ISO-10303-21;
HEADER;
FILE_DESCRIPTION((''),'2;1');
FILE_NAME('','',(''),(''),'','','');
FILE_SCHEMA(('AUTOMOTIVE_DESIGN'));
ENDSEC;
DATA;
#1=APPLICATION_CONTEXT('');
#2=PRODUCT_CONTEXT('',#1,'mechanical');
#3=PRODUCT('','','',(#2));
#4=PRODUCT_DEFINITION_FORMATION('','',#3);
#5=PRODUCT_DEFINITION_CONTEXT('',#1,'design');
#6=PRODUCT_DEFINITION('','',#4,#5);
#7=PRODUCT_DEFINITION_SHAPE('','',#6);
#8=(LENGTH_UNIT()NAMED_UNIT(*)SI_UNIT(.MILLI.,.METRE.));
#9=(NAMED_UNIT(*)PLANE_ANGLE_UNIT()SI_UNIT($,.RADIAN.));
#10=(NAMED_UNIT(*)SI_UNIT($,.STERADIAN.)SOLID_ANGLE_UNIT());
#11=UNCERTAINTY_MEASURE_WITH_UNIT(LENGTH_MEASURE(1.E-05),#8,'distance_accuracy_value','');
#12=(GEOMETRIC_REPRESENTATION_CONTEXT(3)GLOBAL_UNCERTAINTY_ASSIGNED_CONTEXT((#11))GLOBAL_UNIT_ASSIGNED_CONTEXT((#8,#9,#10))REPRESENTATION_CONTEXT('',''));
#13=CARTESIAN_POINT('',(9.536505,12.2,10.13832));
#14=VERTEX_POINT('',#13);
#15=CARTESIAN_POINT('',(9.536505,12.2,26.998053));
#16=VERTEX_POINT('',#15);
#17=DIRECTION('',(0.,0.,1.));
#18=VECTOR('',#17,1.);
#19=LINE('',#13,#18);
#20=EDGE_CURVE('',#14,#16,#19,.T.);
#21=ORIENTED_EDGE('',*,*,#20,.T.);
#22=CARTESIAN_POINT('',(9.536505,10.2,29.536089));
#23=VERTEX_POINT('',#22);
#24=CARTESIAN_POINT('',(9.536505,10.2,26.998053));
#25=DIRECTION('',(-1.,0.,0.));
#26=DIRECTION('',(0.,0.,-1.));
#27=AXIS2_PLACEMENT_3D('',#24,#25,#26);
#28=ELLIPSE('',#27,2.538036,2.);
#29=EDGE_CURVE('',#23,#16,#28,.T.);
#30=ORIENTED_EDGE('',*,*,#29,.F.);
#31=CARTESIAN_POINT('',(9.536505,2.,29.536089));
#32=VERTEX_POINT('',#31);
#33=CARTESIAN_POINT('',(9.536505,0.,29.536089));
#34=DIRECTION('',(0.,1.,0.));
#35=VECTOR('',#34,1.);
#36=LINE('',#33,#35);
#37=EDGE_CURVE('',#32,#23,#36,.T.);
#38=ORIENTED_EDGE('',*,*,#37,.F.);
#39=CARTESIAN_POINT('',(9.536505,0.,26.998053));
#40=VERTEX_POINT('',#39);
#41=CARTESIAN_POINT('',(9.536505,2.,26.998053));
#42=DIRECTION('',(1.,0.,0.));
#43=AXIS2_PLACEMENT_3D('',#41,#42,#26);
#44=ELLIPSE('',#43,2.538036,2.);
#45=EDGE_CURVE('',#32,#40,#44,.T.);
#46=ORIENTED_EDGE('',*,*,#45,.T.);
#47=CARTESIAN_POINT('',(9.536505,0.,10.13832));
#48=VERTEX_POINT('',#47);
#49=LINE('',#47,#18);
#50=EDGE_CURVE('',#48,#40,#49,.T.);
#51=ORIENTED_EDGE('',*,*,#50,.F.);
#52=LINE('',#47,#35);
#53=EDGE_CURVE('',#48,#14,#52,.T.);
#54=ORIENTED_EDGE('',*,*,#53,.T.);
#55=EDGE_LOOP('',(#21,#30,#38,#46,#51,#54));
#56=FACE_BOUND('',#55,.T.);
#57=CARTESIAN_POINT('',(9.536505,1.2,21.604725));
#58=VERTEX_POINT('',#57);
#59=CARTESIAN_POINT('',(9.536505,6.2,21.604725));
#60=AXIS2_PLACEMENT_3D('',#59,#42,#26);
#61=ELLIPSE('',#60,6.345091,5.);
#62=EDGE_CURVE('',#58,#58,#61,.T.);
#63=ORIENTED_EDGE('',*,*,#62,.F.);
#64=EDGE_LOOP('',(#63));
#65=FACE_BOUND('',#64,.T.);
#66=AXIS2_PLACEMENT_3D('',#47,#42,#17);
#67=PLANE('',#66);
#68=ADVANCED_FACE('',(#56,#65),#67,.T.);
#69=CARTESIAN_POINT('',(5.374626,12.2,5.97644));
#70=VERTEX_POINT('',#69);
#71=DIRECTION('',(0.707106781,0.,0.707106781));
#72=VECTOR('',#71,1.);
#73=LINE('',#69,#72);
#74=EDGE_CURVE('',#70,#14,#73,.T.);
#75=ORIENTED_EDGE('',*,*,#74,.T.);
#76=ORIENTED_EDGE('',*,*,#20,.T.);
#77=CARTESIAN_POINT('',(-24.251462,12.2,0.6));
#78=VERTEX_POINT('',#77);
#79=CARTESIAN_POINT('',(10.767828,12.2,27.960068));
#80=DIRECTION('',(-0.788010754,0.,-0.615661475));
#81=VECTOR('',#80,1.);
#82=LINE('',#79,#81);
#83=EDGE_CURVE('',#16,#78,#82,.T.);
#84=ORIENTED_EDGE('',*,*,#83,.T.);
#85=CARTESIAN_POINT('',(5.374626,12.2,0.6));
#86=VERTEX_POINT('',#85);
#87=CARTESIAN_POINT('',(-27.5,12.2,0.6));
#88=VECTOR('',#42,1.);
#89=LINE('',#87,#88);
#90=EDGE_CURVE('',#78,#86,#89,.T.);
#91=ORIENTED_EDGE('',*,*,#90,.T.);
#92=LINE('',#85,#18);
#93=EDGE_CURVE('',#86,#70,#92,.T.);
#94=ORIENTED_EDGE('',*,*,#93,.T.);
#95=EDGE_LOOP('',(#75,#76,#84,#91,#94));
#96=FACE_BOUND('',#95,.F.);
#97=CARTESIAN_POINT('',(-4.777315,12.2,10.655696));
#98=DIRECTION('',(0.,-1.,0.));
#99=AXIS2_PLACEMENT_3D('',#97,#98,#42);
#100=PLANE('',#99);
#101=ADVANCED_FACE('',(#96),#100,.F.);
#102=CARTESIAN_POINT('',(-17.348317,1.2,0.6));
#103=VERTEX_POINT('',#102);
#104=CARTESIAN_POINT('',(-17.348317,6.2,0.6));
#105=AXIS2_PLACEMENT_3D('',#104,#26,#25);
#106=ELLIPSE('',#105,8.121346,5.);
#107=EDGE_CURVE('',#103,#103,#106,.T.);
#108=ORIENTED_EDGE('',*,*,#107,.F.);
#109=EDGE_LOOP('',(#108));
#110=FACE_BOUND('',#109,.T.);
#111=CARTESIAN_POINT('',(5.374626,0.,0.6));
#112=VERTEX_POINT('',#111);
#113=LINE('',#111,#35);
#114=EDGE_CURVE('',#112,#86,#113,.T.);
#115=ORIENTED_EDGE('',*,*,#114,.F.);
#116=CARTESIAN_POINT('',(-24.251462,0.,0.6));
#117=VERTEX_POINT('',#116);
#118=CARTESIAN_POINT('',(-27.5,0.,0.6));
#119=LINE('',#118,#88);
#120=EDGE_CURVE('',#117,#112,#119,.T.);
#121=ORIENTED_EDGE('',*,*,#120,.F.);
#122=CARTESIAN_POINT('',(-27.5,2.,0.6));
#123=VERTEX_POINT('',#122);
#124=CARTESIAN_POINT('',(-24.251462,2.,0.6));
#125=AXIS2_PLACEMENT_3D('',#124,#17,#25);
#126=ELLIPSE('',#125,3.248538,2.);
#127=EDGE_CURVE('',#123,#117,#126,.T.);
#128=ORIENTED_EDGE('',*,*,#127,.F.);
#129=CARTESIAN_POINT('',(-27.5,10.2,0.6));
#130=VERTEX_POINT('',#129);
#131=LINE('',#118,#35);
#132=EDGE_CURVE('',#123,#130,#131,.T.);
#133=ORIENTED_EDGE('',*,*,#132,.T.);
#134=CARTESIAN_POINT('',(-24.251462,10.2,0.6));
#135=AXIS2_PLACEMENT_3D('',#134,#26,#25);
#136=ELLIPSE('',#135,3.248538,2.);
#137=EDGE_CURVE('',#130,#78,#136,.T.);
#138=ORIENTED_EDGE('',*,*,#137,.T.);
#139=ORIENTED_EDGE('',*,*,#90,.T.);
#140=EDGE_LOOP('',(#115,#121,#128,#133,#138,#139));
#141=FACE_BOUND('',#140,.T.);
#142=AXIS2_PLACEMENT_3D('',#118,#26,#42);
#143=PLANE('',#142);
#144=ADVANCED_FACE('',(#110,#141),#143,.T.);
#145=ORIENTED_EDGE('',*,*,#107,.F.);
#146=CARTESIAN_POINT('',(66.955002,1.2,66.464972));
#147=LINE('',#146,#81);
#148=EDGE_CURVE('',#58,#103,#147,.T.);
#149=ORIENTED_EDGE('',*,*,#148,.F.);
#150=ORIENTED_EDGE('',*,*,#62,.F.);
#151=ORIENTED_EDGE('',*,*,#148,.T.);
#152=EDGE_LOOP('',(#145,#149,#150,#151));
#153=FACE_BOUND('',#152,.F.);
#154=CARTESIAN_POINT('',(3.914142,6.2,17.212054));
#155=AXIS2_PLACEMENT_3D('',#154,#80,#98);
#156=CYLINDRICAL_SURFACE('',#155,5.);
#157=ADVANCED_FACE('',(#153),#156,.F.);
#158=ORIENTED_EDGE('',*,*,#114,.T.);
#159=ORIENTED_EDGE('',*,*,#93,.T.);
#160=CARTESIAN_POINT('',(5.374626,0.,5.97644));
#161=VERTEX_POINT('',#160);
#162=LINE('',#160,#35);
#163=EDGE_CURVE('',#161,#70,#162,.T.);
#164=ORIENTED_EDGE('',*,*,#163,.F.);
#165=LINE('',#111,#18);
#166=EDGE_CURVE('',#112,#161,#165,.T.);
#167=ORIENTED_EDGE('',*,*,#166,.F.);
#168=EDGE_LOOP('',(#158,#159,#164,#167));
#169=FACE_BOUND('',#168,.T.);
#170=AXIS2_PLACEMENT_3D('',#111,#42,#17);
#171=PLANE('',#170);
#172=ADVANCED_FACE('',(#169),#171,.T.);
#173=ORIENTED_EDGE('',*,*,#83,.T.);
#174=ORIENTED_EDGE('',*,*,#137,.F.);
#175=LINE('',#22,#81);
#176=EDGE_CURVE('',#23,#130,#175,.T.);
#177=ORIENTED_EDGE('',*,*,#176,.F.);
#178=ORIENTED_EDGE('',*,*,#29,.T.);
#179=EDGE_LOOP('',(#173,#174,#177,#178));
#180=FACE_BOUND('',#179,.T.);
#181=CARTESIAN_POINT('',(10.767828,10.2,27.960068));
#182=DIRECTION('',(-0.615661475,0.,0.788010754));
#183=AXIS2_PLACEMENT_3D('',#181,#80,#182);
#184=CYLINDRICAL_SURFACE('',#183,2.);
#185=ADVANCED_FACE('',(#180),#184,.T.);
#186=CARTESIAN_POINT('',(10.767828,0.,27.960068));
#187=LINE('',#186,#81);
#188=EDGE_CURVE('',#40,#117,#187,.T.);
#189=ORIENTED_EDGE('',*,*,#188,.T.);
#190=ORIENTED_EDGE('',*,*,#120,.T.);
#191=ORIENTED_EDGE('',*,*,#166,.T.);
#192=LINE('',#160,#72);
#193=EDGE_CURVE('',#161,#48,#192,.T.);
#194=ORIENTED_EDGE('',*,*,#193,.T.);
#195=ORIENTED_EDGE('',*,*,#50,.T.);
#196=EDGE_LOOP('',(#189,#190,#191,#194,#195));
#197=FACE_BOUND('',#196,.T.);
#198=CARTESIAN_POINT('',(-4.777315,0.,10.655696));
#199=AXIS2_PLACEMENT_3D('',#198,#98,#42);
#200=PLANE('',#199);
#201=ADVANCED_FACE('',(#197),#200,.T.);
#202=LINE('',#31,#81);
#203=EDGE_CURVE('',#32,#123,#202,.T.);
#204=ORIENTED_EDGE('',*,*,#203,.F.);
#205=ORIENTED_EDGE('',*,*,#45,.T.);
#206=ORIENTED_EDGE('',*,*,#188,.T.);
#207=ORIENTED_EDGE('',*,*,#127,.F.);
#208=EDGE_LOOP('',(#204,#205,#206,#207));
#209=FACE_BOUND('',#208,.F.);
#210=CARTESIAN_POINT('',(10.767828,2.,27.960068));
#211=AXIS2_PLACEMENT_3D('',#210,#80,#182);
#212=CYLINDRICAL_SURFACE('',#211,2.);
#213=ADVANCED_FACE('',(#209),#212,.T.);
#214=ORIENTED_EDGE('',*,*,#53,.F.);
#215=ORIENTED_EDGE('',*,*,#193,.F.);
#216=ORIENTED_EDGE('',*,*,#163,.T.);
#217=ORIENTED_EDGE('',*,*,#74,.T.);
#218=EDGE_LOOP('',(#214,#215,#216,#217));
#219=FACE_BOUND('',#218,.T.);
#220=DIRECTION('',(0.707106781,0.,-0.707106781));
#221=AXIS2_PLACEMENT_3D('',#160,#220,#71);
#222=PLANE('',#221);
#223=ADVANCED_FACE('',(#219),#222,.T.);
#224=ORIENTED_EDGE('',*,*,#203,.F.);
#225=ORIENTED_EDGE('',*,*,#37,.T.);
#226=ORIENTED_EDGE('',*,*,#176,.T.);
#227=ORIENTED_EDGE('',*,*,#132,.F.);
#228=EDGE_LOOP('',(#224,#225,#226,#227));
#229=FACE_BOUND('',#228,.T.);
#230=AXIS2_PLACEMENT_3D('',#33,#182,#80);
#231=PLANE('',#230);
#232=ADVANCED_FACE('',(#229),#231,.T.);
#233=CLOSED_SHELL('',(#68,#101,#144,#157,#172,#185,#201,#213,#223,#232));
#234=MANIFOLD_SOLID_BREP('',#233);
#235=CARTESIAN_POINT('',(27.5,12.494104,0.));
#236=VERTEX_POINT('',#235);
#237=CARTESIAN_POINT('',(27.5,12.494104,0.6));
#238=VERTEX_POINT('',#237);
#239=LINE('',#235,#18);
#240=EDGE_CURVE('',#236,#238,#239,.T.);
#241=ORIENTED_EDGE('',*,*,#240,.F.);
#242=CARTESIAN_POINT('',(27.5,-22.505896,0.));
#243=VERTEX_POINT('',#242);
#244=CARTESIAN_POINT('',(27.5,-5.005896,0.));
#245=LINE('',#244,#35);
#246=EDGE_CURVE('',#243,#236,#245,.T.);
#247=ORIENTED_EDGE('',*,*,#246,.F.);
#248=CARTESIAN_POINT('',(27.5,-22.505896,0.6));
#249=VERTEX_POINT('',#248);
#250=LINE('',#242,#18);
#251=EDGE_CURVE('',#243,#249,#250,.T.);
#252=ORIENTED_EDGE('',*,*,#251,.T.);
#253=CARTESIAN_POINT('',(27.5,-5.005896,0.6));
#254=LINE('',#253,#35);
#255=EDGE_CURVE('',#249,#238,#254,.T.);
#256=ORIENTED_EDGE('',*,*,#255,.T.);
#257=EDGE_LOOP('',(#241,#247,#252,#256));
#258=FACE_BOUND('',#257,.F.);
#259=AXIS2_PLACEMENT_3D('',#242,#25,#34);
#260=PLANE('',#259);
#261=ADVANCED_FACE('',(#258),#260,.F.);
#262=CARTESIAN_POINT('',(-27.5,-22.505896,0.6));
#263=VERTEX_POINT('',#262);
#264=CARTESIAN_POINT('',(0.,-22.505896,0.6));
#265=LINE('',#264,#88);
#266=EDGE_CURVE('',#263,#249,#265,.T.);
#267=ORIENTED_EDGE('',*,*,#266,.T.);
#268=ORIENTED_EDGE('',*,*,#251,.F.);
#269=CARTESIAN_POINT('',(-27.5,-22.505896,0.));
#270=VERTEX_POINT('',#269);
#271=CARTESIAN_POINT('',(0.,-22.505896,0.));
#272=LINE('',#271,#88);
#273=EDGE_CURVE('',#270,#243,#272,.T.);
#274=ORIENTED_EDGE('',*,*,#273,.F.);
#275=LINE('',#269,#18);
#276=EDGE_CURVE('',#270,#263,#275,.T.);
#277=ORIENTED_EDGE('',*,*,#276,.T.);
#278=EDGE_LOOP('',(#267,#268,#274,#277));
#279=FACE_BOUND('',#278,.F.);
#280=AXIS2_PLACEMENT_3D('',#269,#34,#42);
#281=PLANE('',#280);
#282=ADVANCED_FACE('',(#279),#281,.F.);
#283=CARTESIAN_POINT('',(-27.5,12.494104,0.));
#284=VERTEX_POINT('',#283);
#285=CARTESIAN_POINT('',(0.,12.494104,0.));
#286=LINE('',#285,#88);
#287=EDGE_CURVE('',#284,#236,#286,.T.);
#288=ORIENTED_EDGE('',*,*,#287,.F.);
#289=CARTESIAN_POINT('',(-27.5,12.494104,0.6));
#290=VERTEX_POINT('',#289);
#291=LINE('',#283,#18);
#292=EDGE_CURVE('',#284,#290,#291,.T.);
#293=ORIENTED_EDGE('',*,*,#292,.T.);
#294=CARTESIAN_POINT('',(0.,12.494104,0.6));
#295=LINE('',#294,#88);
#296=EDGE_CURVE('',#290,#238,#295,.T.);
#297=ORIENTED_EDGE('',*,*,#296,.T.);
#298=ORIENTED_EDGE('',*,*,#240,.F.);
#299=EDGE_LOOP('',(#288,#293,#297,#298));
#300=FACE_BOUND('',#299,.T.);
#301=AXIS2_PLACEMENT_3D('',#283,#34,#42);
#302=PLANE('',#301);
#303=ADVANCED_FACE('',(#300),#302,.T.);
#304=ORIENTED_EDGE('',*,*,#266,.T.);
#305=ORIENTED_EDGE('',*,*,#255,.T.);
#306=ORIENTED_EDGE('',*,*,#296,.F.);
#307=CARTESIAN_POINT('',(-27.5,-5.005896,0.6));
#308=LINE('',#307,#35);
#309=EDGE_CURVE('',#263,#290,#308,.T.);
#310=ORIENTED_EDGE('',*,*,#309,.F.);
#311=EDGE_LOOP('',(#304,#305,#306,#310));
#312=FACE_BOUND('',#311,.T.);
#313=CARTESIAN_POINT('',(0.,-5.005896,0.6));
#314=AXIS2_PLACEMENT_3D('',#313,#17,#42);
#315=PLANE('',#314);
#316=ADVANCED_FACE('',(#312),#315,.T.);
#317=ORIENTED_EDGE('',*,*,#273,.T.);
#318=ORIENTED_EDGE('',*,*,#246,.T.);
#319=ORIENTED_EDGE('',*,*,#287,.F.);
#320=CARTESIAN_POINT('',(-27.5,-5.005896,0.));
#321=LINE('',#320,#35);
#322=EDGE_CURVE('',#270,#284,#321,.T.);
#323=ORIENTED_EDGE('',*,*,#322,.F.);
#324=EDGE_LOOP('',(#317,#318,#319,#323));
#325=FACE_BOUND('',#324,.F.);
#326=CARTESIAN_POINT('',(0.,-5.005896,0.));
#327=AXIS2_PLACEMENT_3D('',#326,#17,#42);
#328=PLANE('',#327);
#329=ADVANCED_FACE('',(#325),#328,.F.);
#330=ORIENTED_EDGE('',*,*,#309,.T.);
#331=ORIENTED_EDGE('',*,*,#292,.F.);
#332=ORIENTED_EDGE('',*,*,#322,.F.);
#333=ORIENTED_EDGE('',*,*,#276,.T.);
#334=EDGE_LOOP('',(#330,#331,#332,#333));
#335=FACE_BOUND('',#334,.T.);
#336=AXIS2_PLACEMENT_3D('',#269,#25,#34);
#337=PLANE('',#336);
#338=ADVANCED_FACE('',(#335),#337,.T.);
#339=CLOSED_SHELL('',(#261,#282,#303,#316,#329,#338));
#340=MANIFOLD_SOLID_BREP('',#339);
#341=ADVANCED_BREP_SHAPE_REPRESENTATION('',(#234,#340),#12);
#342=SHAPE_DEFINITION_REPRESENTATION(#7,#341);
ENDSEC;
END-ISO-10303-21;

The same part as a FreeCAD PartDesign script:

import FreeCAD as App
import Part
import Sketcher
Q = App.Units.Quantity


def edges_at(feature, points):
    """Names of the edges that pass closest to the given points."""
    edges = feature.Shape.Edges
    near = lambda p: min(range(len(edges)), key=lambda i: edges[i].distToShape(Part.Vertex(*p))[0])
    return sorted({f"Edge{near(p) + 1}" for p in points})

doc = App.newDocument("Part")
body = doc.addObject("PartDesign::Body", "Body")

sketch1 = doc.addObject("Sketcher::SketchObject", "Sketch")
body.addObject(sketch1)
sketch1.AttachmentSupport = (doc.XY_Plane, [""])
sketch1.MapMode = "FlatFace"
sketch1.addGeometry(Part.LineSegment(App.Vector(-28, 12, 0), App.Vector(-28, -23, 0)), False)
sketch1.addGeometry(Part.LineSegment(App.Vector(-28, -23, 0), App.Vector(28, -23, 0)), False)
sketch1.addGeometry(Part.LineSegment(App.Vector(28, -23, 0), App.Vector(28, 12, 0)), False)
sketch1.addGeometry(Part.LineSegment(App.Vector(28, 12, 0), App.Vector(-28, 12, 0)), False)
sketch1.addConstraint(Sketcher.Constraint("Coincident", 0, 2, 1, 1))
sketch1.addConstraint(Sketcher.Constraint("Coincident", 1, 2, 2, 1))
sketch1.addConstraint(Sketcher.Constraint("Coincident", 2, 2, 3, 1))
sketch1.addConstraint(Sketcher.Constraint("Coincident", 3, 2, 0, 1))
sketch1.addConstraint(Sketcher.Constraint("Vertical", 0))
sketch1.addConstraint(Sketcher.Constraint("Horizontal", 1))
sketch1.addConstraint(Sketcher.Constraint("Vertical", 2))
sketch1.addConstraint(Sketcher.Constraint("Horizontal", 3))
sketch1.addConstraint(Sketcher.Constraint("DistanceX", 1, 1, 1, 2, Q("55 mm")))
sketch1.addConstraint(Sketcher.Constraint("DistanceY", 0, 2, 0, 1, Q("35 mm")))
sketch1.addConstraint(Sketcher.Constraint("DistanceX", 0, 2, -1, 1, Q("27.5 mm")))
sketch1.addConstraint(Sketcher.Constraint("DistanceY", 0, 2, -1, 1, Q("22.505896 mm")))
pad1 = doc.addObject("PartDesign::Pad", "Pad")
body.addObject(pad1)
pad1.Profile = sketch1
pad1.Length = 0.6
body2 = doc.addObject("PartDesign::Body", "Body001")

sketch2 = doc.addObject("Sketcher::SketchObject", "Sketch001")
body2.addObject(sketch2)
sketch2.AttachmentSupport = (doc.getObject("XZ_Plane001"), [""])
sketch2.MapMode = "FlatFace"
sketch2.addGeometry(Part.LineSegment(App.Vector(10, 30, 0), App.Vector(-28, 1, 0)), False)
sketch2.addGeometry(Part.LineSegment(App.Vector(-28, 1, 0), App.Vector(5, 1, 0)), False)
sketch2.addGeometry(Part.LineSegment(App.Vector(5, 1, 0), App.Vector(5, 6, 0)), False)
sketch2.addGeometry(Part.LineSegment(App.Vector(5, 6, 0), App.Vector(10, 10, 0)), False)
sketch2.addGeometry(Part.LineSegment(App.Vector(10, 10, 0), App.Vector(10, 30, 0)), False)
sketch2.addConstraint(Sketcher.Constraint("Coincident", 0, 2, 1, 1))
sketch2.addConstraint(Sketcher.Constraint("Coincident", 1, 2, 2, 1))
sketch2.addConstraint(Sketcher.Constraint("Coincident", 2, 2, 3, 1))
sketch2.addConstraint(Sketcher.Constraint("Coincident", 3, 2, 4, 1))
sketch2.addConstraint(Sketcher.Constraint("Coincident", 4, 2, 0, 1))
sketch2.addConstraint(Sketcher.Constraint("Horizontal", 1))
sketch2.addConstraint(Sketcher.Constraint("Vertical", 2))
sketch2.addConstraint(Sketcher.Constraint("Vertical", 4))
sketch2.addConstraint(Sketcher.Constraint("Angle", 0, Q("-142 deg")))
sketch2.addConstraint(Sketcher.Constraint("Angle", 3, Q("45 deg")))
sketch2.addConstraint(Sketcher.Constraint("Distance", 0, Q("47 mm")))
sketch2.addConstraint(Sketcher.Constraint("DistanceX", 0, 2, -1, 1, Q("27.5 mm")))
sketch2.addConstraint(Sketcher.Constraint("DistanceY", -1, 1, 0, 2, Q("0.6 mm")))
sketch2.addConstraint(Sketcher.Constraint("DistanceY", 2, 1, 2, 2, Q("5.37644 mm")))
sketch2.addConstraint(Sketcher.Constraint("DistanceY", 4, 1, 4, 2, Q("19.39777 mm")))
pad2 = doc.addObject("PartDesign::Pad", "Pad001")
body2.addObject(pad2)
pad2.Profile = sketch2
pad2.Length = 12.2
pad2.Reversed = True
body3 = doc.addObject("PartDesign::Body", "Body002")

sketch3 = doc.addObject("Sketcher::SketchObject", "Sketch002")
body3.addObject(sketch3)
sketch3.Placement = App.Placement(App.Vector(10.780921, 0, 8.422978), App.Rotation(App.Vector(0, -1, 0), App.Vector(-0.615661475, 0, 0.788010754), App.Vector(-0.788010754, 0, -0.615661475), "ZXY"))
sketch3.addGeometry(Part.Circle(App.Vector(0, 11, 0), App.Vector(0, 0, 1), 5), False)
sketch3.addConstraint(Sketcher.Constraint("PointOnObject", 0, 3, -2))
sketch3.addConstraint(Sketcher.Constraint("Diameter", 0, Q("10 mm")))
sketch3.addConstraint(Sketcher.Constraint("DistanceY", -1, 1, 0, 3, Q("11.153497 mm")))
pad3 = doc.addObject("PartDesign::Pad", "Pad002")
body3.addObject(pad3)
pad3.Profile = sketch3
pad3.Length = 160
pad3.Midplane = True
body4 = doc.addObject("PartDesign::Body", "Body003")
doc.recompute()

body3.Placement = App.Placement(App.Vector(0, 6.2, 0), App.Rotation(App.Vector(0, 0, 1), 0))
boolean = doc.addObject("PartDesign::Boolean", "Boolean")
body4.addObject(boolean)
boolean.Type = "Fuse"
boolean.addObjects([body3])
doc.recompute()

boolean2 = doc.addObject("PartDesign::Boolean", "Boolean001")
body2.addObject(boolean2)
boolean2.Type = "Cut"
boolean2.addObjects([body4])
doc.recompute()

fillet = doc.addObject("PartDesign::Fillet", "Fillet")
body2.addObject(fillet)
fillet.Base = (boolean2, edges_at(boolean2, [(-8.982, 12.2, 15.068), (-8.982, 0, 15.068)]))
fillet.Radius = 2

doc.recompute()
